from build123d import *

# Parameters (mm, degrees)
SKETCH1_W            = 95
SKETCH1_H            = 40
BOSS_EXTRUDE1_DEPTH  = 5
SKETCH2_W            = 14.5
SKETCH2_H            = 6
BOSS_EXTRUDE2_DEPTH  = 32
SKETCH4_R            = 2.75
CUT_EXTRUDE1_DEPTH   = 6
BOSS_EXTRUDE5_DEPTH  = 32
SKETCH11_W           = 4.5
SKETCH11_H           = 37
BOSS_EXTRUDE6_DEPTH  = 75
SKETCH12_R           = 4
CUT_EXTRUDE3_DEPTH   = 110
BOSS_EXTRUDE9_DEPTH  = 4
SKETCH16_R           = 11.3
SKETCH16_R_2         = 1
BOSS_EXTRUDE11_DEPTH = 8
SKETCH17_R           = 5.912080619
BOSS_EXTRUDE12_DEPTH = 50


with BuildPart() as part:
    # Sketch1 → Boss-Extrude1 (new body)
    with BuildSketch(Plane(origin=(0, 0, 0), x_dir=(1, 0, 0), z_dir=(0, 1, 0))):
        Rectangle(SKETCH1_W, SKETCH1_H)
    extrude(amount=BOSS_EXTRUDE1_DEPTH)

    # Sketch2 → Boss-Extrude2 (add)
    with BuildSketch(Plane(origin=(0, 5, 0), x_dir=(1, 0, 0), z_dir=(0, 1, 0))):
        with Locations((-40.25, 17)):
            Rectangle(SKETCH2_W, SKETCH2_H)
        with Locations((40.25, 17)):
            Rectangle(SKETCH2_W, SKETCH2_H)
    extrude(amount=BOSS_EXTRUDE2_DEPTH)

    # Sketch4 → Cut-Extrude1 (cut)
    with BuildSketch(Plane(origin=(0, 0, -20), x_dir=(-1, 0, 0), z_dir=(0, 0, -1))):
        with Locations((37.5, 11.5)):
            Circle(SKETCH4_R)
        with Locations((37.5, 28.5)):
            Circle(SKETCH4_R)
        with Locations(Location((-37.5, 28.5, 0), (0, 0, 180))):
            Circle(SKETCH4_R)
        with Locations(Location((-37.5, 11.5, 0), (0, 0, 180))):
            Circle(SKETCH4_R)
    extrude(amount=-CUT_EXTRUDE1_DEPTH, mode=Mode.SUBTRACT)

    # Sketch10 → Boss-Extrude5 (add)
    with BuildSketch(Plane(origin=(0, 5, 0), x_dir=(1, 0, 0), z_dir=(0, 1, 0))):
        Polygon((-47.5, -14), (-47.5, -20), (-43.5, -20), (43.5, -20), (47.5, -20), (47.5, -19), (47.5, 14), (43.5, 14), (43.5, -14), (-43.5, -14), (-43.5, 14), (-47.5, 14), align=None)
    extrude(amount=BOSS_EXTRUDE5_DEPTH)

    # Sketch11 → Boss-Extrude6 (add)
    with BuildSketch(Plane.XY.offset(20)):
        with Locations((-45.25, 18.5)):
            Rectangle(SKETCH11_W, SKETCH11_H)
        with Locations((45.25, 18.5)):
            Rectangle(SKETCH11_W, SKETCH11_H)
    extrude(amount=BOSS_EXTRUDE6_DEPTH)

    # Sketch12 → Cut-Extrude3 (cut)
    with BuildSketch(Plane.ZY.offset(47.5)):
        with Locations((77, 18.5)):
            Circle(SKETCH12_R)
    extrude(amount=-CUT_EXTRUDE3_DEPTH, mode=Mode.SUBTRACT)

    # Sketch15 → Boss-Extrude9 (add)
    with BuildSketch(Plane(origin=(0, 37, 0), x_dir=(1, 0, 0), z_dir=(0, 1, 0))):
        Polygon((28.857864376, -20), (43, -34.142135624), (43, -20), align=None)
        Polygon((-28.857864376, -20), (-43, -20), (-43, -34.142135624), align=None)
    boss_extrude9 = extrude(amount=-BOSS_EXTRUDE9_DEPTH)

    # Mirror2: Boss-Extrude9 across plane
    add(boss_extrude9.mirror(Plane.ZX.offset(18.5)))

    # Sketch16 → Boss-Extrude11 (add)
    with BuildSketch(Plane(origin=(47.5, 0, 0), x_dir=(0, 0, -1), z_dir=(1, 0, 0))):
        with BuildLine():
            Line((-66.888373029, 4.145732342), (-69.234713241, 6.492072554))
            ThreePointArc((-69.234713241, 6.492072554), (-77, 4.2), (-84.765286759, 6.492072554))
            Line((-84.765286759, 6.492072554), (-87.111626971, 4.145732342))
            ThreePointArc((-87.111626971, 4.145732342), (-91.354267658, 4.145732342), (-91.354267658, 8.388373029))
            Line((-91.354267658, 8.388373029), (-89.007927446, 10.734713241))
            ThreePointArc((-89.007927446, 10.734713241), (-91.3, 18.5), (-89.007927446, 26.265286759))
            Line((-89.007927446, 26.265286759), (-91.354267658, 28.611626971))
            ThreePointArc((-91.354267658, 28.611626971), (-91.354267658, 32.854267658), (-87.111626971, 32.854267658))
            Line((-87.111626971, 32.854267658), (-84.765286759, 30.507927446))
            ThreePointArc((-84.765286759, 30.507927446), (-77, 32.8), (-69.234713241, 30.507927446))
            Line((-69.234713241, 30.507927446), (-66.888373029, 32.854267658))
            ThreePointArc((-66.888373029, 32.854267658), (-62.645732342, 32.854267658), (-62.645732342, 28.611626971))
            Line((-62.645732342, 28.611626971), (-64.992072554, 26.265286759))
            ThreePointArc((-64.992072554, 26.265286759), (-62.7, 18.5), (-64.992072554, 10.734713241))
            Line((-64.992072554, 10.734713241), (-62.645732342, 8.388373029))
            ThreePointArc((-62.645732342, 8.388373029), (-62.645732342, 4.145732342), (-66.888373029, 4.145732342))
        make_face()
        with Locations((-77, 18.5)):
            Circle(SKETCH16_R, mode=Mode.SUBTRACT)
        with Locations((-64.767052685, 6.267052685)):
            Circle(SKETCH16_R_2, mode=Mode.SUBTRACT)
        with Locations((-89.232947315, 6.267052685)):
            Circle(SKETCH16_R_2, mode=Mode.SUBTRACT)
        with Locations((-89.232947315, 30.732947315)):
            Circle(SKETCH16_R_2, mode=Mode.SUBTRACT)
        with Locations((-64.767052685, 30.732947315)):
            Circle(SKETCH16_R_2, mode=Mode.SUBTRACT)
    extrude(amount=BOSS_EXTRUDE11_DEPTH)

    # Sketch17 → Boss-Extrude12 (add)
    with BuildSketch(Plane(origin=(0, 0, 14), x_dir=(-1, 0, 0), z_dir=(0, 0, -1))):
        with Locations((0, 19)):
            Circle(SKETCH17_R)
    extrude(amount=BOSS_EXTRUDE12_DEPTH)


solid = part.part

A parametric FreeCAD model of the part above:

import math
import FreeCAD as App
import Part
import Sketcher


def add_polygon(sketch, points):
    """Adds a closed chain of lines whose ends are joined by coincident constraints."""
    first, n = sketch.GeometryCount, len(points)
    for a, b in zip(points, points[1:] + points[:1]):
        sketch.addGeometry(Part.LineSegment(App.Vector(*a, 0), App.Vector(*b, 0)), False)
    for i in range(n):
        sketch.addConstraint(Sketcher.Constraint("Coincident", first + i, 2, first + (i + 1) % n, 1))

doc = App.newDocument("Part")
body = doc.addObject("PartDesign::Body", "Body")

sketch1 = body.newObject("Sketcher::SketchObject", "Sketch")
sketch1.AttachmentSupport = (doc.getObject("XZ_Plane"), [""])
sketch1.MapMode = "FlatFace"
add_polygon(sketch1, [(-48, -20), (-48, 20), (48, 20), (48, -20)])
sketch1.addConstraint(Sketcher.Constraint("Vertical", 0))
sketch1.addConstraint(Sketcher.Constraint("Horizontal", 1))
sketch1.addConstraint(Sketcher.Constraint("Vertical", 2))
sketch1.addConstraint(Sketcher.Constraint("Horizontal", 3))
sketch1.addConstraint(Sketcher.Constraint("Symmetric", 0, 2, 2, 2, -1, 1))
sketch1.addConstraint(Sketcher.Constraint("DistanceX", 1, 1, 1, 2, 95.0))
sketch1.addConstraint(Sketcher.Constraint("DistanceY", 0, 1, 0, 2, 40.0))
pad1 = body.newObject("PartDesign::Pad", "Pad")
pad1.Profile = sketch1
pad1.Length = 5
pad1.Reversed = True

sketch2 = body.newObject("Sketcher::SketchObject", "Sketch001")
sketch2.AttachmentSupport = (doc.getObject("XZ_Plane"), [""])
sketch2.MapMode = "FlatFace"
sketch2.AttachmentOffset = App.Placement(App.Vector(0, 0, -5), App.Rotation())
add_polygon(sketch2, [(-48, -20), (-48, -14), (-33, -14), (-33, -20)])
add_polygon(sketch2, [(33, -20), (33, -14), (48, -14), (48, -20)])
sketch2.addConstraint(Sketcher.Constraint("Vertical", 0))
sketch2.addConstraint(Sketcher.Constraint("Horizontal", 1))
sketch2.addConstraint(Sketcher.Constraint("Vertical", 2))
sketch2.addConstraint(Sketcher.Constraint("Horizontal", 3))
sketch2.addConstraint(Sketcher.Constraint("Vertical", 4))
sketch2.addConstraint(Sketcher.Constraint("Horizontal", 5))
sketch2.addConstraint(Sketcher.Constraint("Vertical", 6))
sketch2.addConstraint(Sketcher.Constraint("Horizontal", 7))
sketch2.addConstraint(Sketcher.Constraint("Symmetric", 1, 2, 4, 2, -2))
sketch2.addConstraint(Sketcher.Constraint("Symmetric", 3, 2, 6, 2, -2))
sketch2.addConstraint(Sketcher.Constraint("DistanceY", 0, 1, 0, 2, 6.0))
sketch2.addConstraint(Sketcher.Constraint("DistanceX", 1, 1, 1, 2, 14.5))
sketch2.addConstraint(Sketcher.Constraint("DistanceY", 0, 2, -1, 1, 14.0))
sketch2.addConstraint(Sketcher.Constraint("DistanceX", 1, 2, -1, 1, 33.0))
pad2 = body.newObject("PartDesign::Pad", "Pad001")
pad2.Profile = sketch2
pad2.Length = 32
pad2.Reversed = True

sketch3 = body.newObject("Sketcher::SketchObject", "Sketch002")
sketch3.AttachmentSupport = (doc.getObject("XY_Plane"), [""])
sketch3.MapMode = "FlatFace"
sketch3.AttachmentOffset = App.Placement(App.Vector(0, 0, -20), App.Rotation())
sketch3.addGeometry(Part.Circle(App.Vector(-37.5, 11.5, 0), App.Vector(0, 0, 1), 2.8), False)
sketch3.addGeometry(Part.Circle(App.Vector(-37.5, 28.5, 0), App.Vector(0, 0, 1), 2.8), False)
sketch3.addGeometry(Part.Circle(App.Vector(37.5, 28.5, 0), App.Vector(0, 0, 1), 2.8), False)
sketch3.addGeometry(Part.Circle(App.Vector(37.5, 11.5, 0), App.Vector(0, 0, 1), 2.8), False)
sketch3.addConstraint(Sketcher.Constraint("Equal", 0, 1))
sketch3.addConstraint(Sketcher.Constraint("Equal", 1, 2))
sketch3.addConstraint(Sketcher.Constraint("Equal", 2, 3))
sketch3.addConstraint(Sketcher.Constraint("Symmetric", 1, 3, 2, 3, -2))
sketch3.addConstraint(Sketcher.Constraint("Symmetric", 0, 3, 3, 3, -2))
sketch3.addConstraint(Sketcher.Constraint("Vertical", 0, 3, 1, 3))
sketch3.addConstraint(Sketcher.Constraint("Diameter", 0, 5.5))
sketch3.addConstraint(Sketcher.Constraint("DistanceY", 0, 3, 1, 3, 17.0))
sketch3.addConstraint(Sketcher.Constraint("DistanceX", 1, 3, 2, 3, 75.0))
sketch3.addConstraint(Sketcher.Constraint("DistanceY", -1, 1, 0, 3, 11.5))
pocket1 = body.newObject("PartDesign::Pocket", "Pocket")
pocket1.Profile = sketch3
pocket1.Length = 6
pocket1.Reversed = True

sketch4 = body.newObject("Sketcher::SketchObject", "Sketch003")
sketch4.AttachmentSupport = (doc.getObject("XZ_Plane"), [""])
sketch4.MapMode = "FlatFace"
sketch4.AttachmentOffset = App.Placement(App.Vector(0, 0, -5), App.Rotation())
add_polygon(sketch4, [(-47.5, 20), (47.5, 20), (47.5, -14), (43.5, -14), (43.5, 14), (-43.5, 14), (-43.5, -14), (-47.5, -14)])
sketch4.addConstraint(Sketcher.Constraint("Horizontal", 0))
sketch4.addConstraint(Sketcher.Constraint("Vertical", 1))
sketch4.addConstraint(Sketcher.Constraint("Horizontal", 2))
sketch4.addConstraint(Sketcher.Constraint("Vertical", 3))
sketch4.addConstraint(Sketcher.Constraint("Horizontal", 4))
sketch4.addConstraint(Sketcher.Constraint("Vertical", 5))
sketch4.addConstraint(Sketcher.Constraint("Horizontal", 6))
sketch4.addConstraint(Sketcher.Constraint("Vertical", 7))
sketch4.addConstraint(Sketcher.Constraint("Symmetric", 2, 2, 4, 2, -1, 1))
sketch4.addConstraint(Sketcher.Constraint("Symmetric", 1, 2, 6, 2, -2))
sketch4.addConstraint(Sketcher.Constraint("DistanceX", 0, 1, 0, 2, 95.0))
sketch4.addConstraint(Sketcher.Constraint("DistanceX", 2, 2, 2, 1, 4.0))
sketch4.addConstraint(Sketcher.Constraint("DistanceY", 1, 2, 1, 1, 34.0))
sketch4.addConstraint(Sketcher.Constraint("DistanceY", 3, 1, 3, 2, 28.0))
pad3 = body.newObject("PartDesign::Pad", "Pad002")
pad3.Profile = sketch4
pad3.Length = 32
pad3.Reversed = True

sketch5 = body.newObject("Sketcher::SketchObject", "Sketch004")
sketch5.AttachmentSupport = (doc.getObject("XY_Plane"), [""])
sketch5.MapMode = "FlatFace"
sketch5.AttachmentOffset = App.Placement(App.Vector(0, 0, 20), App.Rotation())
add_polygon(sketch5, [(-47.5, 37), (-47.5, 0), (-43, 0), (-43, 37)])
add_polygon(sketch5, [(43, 37), (43, 0), (47.5, 0), (47.5, 37)])
sketch5.addConstraint(Sketcher.Constraint("Vertical", 0))
sketch5.addConstraint(Sketcher.Constraint("Horizontal", 1))
sketch5.addConstraint(Sketcher.Constraint("Vertical", 2))
sketch5.addConstraint(Sketcher.Constraint("Horizontal", 3))
sketch5.addConstraint(Sketcher.Constraint("Vertical", 4))
sketch5.addConstraint(Sketcher.Constraint("Horizontal", 5))
sketch5.addConstraint(Sketcher.Constraint("Vertical", 6))
sketch5.addConstraint(Sketcher.Constraint("Horizontal", 7))
sketch5.addConstraint(Sketcher.Constraint("Symmetric", 1, 2, 4, 2, -1, 1))
sketch5.addConstraint(Sketcher.Constraint("Symmetric", 0, 2, 5, 2, -2))
sketch5.addConstraint(Sketcher.Constraint("Horizontal", 3, 2, 6, 2))
sketch5.addConstraint(Sketcher.Constraint("DistanceY", 0, 2, 0, 1, 37.0))
sketch5.addConstraint(Sketcher.Constraint("DistanceX", 1, 1, 1, 2, 4.5))
sketch5.addConstraint(Sketcher.Constraint("DistanceX", 1, 2, -1, 1, 43.0))
pad4 = body.newObject("PartDesign::Pad", "Pad003")
pad4.Profile = sketch5
pad4.Length = 75

sketch6 = body.newObject("Sketcher::SketchObject", "Sketch005")
sketch6.AttachmentSupport = (doc.getObject("YZ_Plane"), [""])
sketch6.MapMode = "FlatFace"
sketch6.AttachmentOffset = App.Placement(App.Vector(0, 0, -47.5), App.Rotation())
sketch6.addGeometry(Part.Circle(App.Vector(18.5, 77, 0), App.Vector(0, 0, 1), 4), False)
sketch6.addConstraint(Sketcher.Constraint("Diameter", 0, 8.0))
sketch6.addConstraint(Sketcher.Constraint("DistanceY", -1, 1, 0, 3, 77.0))
sketch6.addConstraint(Sketcher.Constraint("DistanceX", -1, 1, 0, 3, 18.5))
pocket2 = body.newObject("PartDesign::Pocket", "Pocket001")
pocket2.Profile = sketch6
pocket2.Length = 110
pocket2.Reversed = True

sketch7 = body.newObject("Sketcher::SketchObject", "Sketch006")
sketch7.AttachmentSupport = (doc.getObject("XZ_Plane"), [""])
sketch7.MapMode = "FlatFace"
sketch7.AttachmentOffset = App.Placement(App.Vector(0, 0, -37), App.Rotation())
add_polygon(sketch7, [(29, 20), (43, 34), (43, 20)])
add_polygon(sketch7, [(-29, 20), (-43, 20), (-43, 34)])
sketch7.addConstraint(Sketcher.Constraint("Vertical", 1))
sketch7.addConstraint(Sketcher.Constraint("Horizontal", 2))
sketch7.addConstraint(Sketcher.Constraint("Horizontal", 3))
sketch7.addConstraint(Sketcher.Constraint("Vertical", 4))
sketch7.addConstraint(Sketcher.Constraint("Symmetric", 1, 2, 3, 2, -2))
sketch7.addConstraint(Sketcher.Constraint("Perpendicular", 0, 5))
sketch7.addConstraint(Sketcher.Constraint("Horizontal", 0, 2, 4, 2))
sketch7.addConstraint(Sketcher.Constraint("Equal", 2, 3))
sketch7.addConstraint(Sketcher.Constraint("Distance", 0, 20.0))
sketch7.addConstraint(Sketcher.Constraint("DistanceX", -1, 1, 0, 2, 43.0))
sketch7.addConstraint(Sketcher.Constraint("DistanceY", -1, 1, 1, 2, 20.0))
pad5 = body.newObject("PartDesign::Pad", "Pad004")
pad5.Profile = sketch7
pad5.Length = 4
doc.recompute()

datumplane = body.newObject("PartDesign::Plane", "DatumPlane")
datumplane.AttachmentSupport = (doc.getObject("XZ_Plane"), [""])
datumplane.MapMode = "FlatFace"
datumplane.AttachmentOffset = App.Placement(App.Vector(0, 0, -18.5), App.Rotation())
mirrored = body.newObject("PartDesign::Mirrored", "Mirrored")
mirrored.Originals = [pad5]
mirrored.MirrorPlane = (datumplane, [""])
body.Tip = mirrored

sketch8 = body.newObject("Sketcher::SketchObject", "Sketch007")
sketch8.AttachmentSupport = (doc.getObject("YZ_Plane"), [""])
sketch8.MapMode = "FlatFace"
sketch8.AttachmentOffset = App.Placement(App.Vector(0, 0, 47.5), App.Rotation())
sketch8.addGeometry(Part.LineSegment(App.Vector(6.5, 69.2, 0), App.Vector(4.1, 66.9, 0)), False)
sketch8.addGeometry(Part.ArcOfCircle(Part.Circle(App.Vector(6.3, 64.8, 0), App.Vector(0, 0, 1), 3), math.radians(135), math.radians(315)), False)
sketch8.addGeometry(Part.LineSegment(App.Vector(8.4, 62.6, 0), App.Vector(10.7, 65, 0)), False)
sketch8.addGeometry(Part.ArcOfCircle(Part.Circle(App.Vector(18.5, 77, 0), App.Vector(0, 0, 1), 14.3), math.radians(-123), math.radians(-57)), False)
sketch8.addGeometry(Part.LineSegment(App.Vector(26.3, 65, 0), App.Vector(28.6, 62.6, 0)), False)
sketch8.addGeometry(Part.ArcOfCircle(Part.Circle(App.Vector(30.7, 64.8, 0), App.Vector(0, 0, 1), 3), math.radians(-135), math.radians(45)), False)
sketch8.addGeometry(Part.LineSegment(App.Vector(32.9, 66.9, 0), App.Vector(30.5, 69.2, 0)), False)
sketch8.addGeometry(Part.ArcOfCircle(Part.Circle(App.Vector(18.5, 77, 0), App.Vector(0, 0, 1), 14.3), math.radians(-33), math.radians(33)), False)
sketch8.addGeometry(Part.LineSegment(App.Vector(30.5, 84.8, 0), App.Vector(32.9, 87.1, 0)), False)
sketch8.addGeometry(Part.ArcOfCircle(Part.Circle(App.Vector(30.7, 89.2, 0), App.Vector(0, 0, 1), 3), math.radians(-45), math.radians(135)), False)
sketch8.addGeometry(Part.LineSegment(App.Vector(28.6, 91.4, 0), App.Vector(26.3, 89, 0)), False)
sketch8.addGeometry(Part.ArcOfCircle(Part.Circle(App.Vector(18.5, 77, 0), App.Vector(0, 0, 1), 14.3), math.radians(57), math.radians(123)), False)
sketch8.addGeometry(Part.LineSegment(App.Vector(10.7, 89, 0), App.Vector(8.4, 91.4, 0)), False)
sketch8.addGeometry(Part.ArcOfCircle(Part.Circle(App.Vector(6.3, 89.2, 0), App.Vector(0, 0, 1), 3), math.radians(45), math.radians(225)), False)
sketch8.addGeometry(Part.LineSegment(App.Vector(4.1, 87.1, 0), App.Vector(6.5, 84.8, 0)), False)
sketch8.addGeometry(Part.ArcOfCircle(Part.Circle(App.Vector(18.5, 77, 0), App.Vector(0, 0, 1), 14.3), math.radians(147), math.radians(213)), False)
sketch8.addGeometry(Part.Circle(App.Vector(6.3, 64.8, 0), App.Vector(0, 0, 1), 1), False)
sketch8.addGeometry(Part.Circle(App.Vector(6.3, 89.2, 0), App.Vector(0, 0, 1), 1), False)
sketch8.addGeometry(Part.Circle(App.Vector(18.5, 77, 0), App.Vector(0, 0, 1), 11.3), False)
sketch8.addGeometry(Part.Circle(App.Vector(30.7, 64.8, 0), App.Vector(0, 0, 1), 1), False)
sketch8.addGeometry(Part.Circle(App.Vector(30.7, 89.2, 0), App.Vector(0, 0, 1), 1), False)
sketch8.addConstraint(Sketcher.Constraint("Tangent", 0, 2, 1, 1))
sketch8.addConstraint(Sketcher.Constraint("Tangent", 1, 2, 2, 1))
sketch8.addConstraint(Sketcher.Constraint("Coincident", 2, 2, 3, 1))
sketch8.addConstraint(Sketcher.Constraint("Coincident", 3, 2, 4, 1))
sketch8.addConstraint(Sketcher.Constraint("Tangent", 4, 2, 5, 1))
sketch8.addConstraint(Sketcher.Constraint("Tangent", 5, 2, 6, 1))
sketch8.addConstraint(Sketcher.Constraint("Coincident", 6, 2, 7, 1))
sketch8.addConstraint(Sketcher.Constraint("Coincident", 7, 2, 8, 1))
sketch8.addConstraint(Sketcher.Constraint("Tangent", 8, 2, 9, 1))
sketch8.addConstraint(Sketcher.Constraint("Tangent", 9, 2, 10, 1))
sketch8.addConstraint(Sketcher.Constraint("Coincident", 10, 2, 11, 1))
sketch8.addConstraint(Sketcher.Constraint("Coincident", 11, 2, 12, 1))
sketch8.addConstraint(Sketcher.Constraint("Tangent", 12, 2, 13, 1))
sketch8.addConstraint(Sketcher.Constraint("Tangent", 13, 2, 14, 1))
sketch8.addConstraint(Sketcher.Constraint("Coincident", 14, 2, 15, 1))
sketch8.addConstraint(Sketcher.Constraint("Coincident", 15, 2, 0, 1))
sketch8.addConstraint(Sketcher.Constraint("Coincident", 7, 3, 3, 3))
sketch8.addConstraint(Sketcher.Constraint("Coincident", 11, 3, 3, 3))
sketch8.addConstraint(Sketcher.Constraint("Coincident", 15, 3, 3, 3))
sketch8.addConstraint(Sketcher.Constraint("Coincident", 16, 3, 1, 3))
sketch8.addConstraint(Sketcher.Constraint("Coincident", 17, 3, 13, 3))
sketch8.addConstraint(Sketcher.Constraint("Coincident", 18, 3, 3, 3))
sketch8.addConstraint(Sketcher.Constraint("Coincident", 19, 3, 5, 3))
sketch8.addConstraint(Sketcher.Constraint("Coincident", 20, 3, 9, 3))
sketch8.addConstraint(Sketcher.Constraint("Equal", 1, 5))
sketch8.addConstraint(Sketcher.Constraint("Equal", 3, 7))
sketch8.addConstraint(Sketcher.Constraint("Equal", 5, 9))
sketch8.addConstraint(Sketcher.Constraint("Equal", 7, 11))
sketch8.addConstraint(Sketcher.Constraint("Equal", 9, 13))
sketch8.addConstraint(Sketcher.Constraint("Equal", 11, 15))
sketch8.addConstraint(Sketcher.Constraint("Equal", 16, 17))
sketch8.addConstraint(Sketcher.Constraint("Equal", 17, 19))
sketch8.addConstraint(Sketcher.Constraint("Equal", 19, 20))
sketch8.addConstraint(Sketcher.Constraint("Parallel", 0, 2))
sketch8.addConstraint(Sketcher.Constraint("Perpendicular", 2, 4))
sketch8.addConstraint(Sketcher.Constraint("Parallel", 4, 6))
sketch8.addConstraint(Sketcher.Constraint("Perpendicular", 6, 8))
sketch8.addConstraint(Sketcher.Constraint("Parallel", 8, 10))
sketch8.addConstraint(Sketcher.Constraint("Perpendicular", 10, 12))
sketch8.addConstraint(Sketcher.Constraint("Parallel", 12, 14))
sketch8.addConstraint(Sketcher.Constraint("Horizontal", 1, 3, 5, 3))
sketch8.addConstraint(Sketcher.Constraint("Horizontal", 9, 3, 13, 3))
sketch8.addConstraint(Sketcher.Constraint("Horizontal", 2, 2, 3, 2))
sketch8.addConstraint(Sketcher.Constraint("Horizontal", 1, 2, 4, 2))
sketch8.addConstraint(Sketcher.Constraint("Horizontal", 10, 2, 11, 2))
sketch8.addConstraint(Sketcher.Constraint("Vertical", 5, 3, 9, 3))
sketch8.addConstraint(Sketcher.Constraint("Vertical", 6, 2, 7, 2))
sketch8.addConstraint(Sketcher.Constraint("Equal", 0, 2))
sketch8.addConstraint(Sketcher.Constraint("Diameter", 16, 2.0))
sketch8.addConstraint(Sketcher.Constraint("Radius", 1, 3.0))
sketch8.addConstraint(Sketcher.Constraint("Diameter", 18, 22.6))
sketch8.addConstraint(Sketcher.Constraint("Radius", 3, 14.3))
sketch8.addConstraint(Sketcher.Constraint("DistanceY", -1, 1, 3, 3, 77.0))
sketch8.addConstraint(Sketcher.Constraint("DistanceX", -1, 1, 3, 3, 18.5))
sketch8.addConstraint(Sketcher.Constraint("DistanceY", 2, 2, 0, 2, 1.8963))
pad6 = body.newObject("PartDesign::Pad", "Pad005")
pad6.Profile = sketch8
pad6.Length = 8

sketch9 = body.newObject("Sketcher::SketchObject", "Sketch008")
sketch9.AttachmentSupport = (doc.getObject("XY_Plane"), [""])
sketch9.MapMode = "FlatFace"
sketch9.AttachmentOffset = App.Placement(App.Vector(0, 0, 14), App.Rotation())
sketch9.addGeometry(Part.Circle(App.Vector(0, 19, 0), App.Vector(0, 0, 1), 6), False)
sketch9.addConstraint(Sketcher.Constraint("PointOnObject", 0, 3, -2))
sketch9.addConstraint(Sketcher.Constraint("DistanceY", -1, 1, 0, 3, 19.0))
sketch9.addConstraint(Sketcher.Constraint("Diameter", 0, 11.824161))
pad7 = body.newObject("PartDesign::Pad", "Pad006")
pad7.Profile = sketch9
pad7.Length = 50
pad7.Reversed = True

doc.recompute()
